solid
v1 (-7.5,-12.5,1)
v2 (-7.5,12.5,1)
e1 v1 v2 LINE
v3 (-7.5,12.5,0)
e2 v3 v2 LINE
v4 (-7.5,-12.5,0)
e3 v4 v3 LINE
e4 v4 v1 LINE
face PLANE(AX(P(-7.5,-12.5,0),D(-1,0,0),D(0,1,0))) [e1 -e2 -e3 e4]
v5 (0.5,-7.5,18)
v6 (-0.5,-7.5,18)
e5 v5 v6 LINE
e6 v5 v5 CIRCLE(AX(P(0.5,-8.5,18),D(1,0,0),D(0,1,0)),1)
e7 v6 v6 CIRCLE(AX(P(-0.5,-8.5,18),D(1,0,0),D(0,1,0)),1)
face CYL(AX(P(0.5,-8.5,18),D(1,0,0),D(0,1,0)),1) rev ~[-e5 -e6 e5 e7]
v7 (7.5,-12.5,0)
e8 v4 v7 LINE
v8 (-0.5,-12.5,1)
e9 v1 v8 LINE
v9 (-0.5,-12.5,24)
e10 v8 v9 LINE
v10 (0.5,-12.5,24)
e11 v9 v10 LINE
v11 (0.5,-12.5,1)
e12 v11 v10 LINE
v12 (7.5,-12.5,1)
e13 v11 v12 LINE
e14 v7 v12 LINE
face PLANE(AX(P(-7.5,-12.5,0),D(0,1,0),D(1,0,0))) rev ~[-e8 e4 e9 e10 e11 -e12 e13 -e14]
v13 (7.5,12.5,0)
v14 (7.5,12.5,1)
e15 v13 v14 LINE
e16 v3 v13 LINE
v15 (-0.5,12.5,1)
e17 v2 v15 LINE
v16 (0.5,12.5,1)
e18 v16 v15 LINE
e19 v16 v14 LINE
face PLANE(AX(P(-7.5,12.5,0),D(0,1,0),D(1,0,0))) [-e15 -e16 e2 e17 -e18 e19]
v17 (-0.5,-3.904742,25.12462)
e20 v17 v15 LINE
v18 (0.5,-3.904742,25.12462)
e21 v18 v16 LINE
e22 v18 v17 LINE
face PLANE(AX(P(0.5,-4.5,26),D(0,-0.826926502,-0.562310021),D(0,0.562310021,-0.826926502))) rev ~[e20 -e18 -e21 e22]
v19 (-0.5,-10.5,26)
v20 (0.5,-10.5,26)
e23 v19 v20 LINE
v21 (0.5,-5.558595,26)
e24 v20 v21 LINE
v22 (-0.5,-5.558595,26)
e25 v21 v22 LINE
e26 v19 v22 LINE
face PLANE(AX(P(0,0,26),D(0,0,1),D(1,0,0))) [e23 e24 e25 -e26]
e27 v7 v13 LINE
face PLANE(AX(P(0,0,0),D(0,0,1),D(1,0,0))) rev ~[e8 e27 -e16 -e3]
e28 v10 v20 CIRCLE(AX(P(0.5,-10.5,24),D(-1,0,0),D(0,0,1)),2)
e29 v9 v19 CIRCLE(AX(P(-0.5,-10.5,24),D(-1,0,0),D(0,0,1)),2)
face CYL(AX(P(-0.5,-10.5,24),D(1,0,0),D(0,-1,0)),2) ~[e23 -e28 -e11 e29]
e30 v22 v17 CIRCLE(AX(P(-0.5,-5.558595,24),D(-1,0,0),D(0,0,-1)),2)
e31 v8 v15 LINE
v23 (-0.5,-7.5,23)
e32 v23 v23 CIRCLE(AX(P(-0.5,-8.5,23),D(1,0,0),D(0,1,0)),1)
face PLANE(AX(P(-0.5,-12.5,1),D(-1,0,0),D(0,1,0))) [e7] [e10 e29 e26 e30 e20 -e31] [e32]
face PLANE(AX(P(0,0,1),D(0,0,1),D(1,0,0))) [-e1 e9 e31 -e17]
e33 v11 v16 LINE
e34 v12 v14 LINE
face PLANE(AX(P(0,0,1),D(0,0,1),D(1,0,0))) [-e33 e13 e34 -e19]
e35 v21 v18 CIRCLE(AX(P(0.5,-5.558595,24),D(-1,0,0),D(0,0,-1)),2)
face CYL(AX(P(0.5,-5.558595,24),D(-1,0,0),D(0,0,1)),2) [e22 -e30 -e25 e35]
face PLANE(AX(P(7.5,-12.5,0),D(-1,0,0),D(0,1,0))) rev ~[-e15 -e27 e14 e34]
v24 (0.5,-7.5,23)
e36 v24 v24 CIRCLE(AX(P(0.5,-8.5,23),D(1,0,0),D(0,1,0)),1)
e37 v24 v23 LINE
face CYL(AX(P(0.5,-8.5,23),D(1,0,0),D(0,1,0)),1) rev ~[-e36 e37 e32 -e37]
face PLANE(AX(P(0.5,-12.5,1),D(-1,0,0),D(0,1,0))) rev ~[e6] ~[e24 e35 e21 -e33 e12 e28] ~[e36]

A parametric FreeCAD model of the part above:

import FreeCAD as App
import Part
import Sketcher
from FreeCAD import Vector


def edges_at(feature, points):
    """Names of the edges that pass closest to the given points."""
    edges = feature.Shape.Edges
    near = lambda p: min(range(len(edges)), key=lambda i: edges[i].distToShape(Part.Vertex(*p))[0])
    return sorted({f"Edge{near(p) + 1}" for p in points})


def add_polygon(sketch, points):
    """Adds a closed chain of lines whose ends are joined by coincident constraints."""
    first, n = sketch.GeometryCount, len(points)
    for a, b in zip(points, points[1:] + points[:1]):
        sketch.addGeometry(Part.LineSegment(App.Vector(*a, 0), App.Vector(*b, 0)), False)
    for i in range(n):
        sketch.addConstraint(Sketcher.Constraint("Coincident", first + i, 2, first + (i + 1) % n, 1))

doc = App.newDocument("Part")
params = doc.addObject("Spreadsheet::Sheet", "Params")
for row, (alias, value) in enumerate([
    ("sketch1_width", "15 mm"),
    ("sketch1_height", "25 mm"),
    ("pad1_length", "1 mm"),
    ("sketch2_width", "1 mm"),
    ("sketch2_height", "25 mm"),
    ("pad2_length", "25 mm"),
    ("sketch3_diameter", "2 mm"),
    ("sketch3_width", "17 mm"),
    ("sketch3_height", "25 mm"),
    ("fillet_radius", "2 mm"),
], start=1):
    params.set(f"A{row}", alias)
    params.set(f"B{row}", "=" + value)
    params.setAlias(f"B{row}", alias)

body = doc.addObject("PartDesign::Body", "Body")

sketch1 = doc.addObject("Sketcher::SketchObject", "Sketch")
body.addObject(sketch1)
sketch1.AttachmentSupport = (doc.XY_Plane, [""])
sketch1.MapMode = "FlatFace"
add_polygon(sketch1, [(-8, 12), (-8, -12), (8, -12), (8, 12)])
sketch1.addConstraint([
    Sketcher.Constraint("Vertical", 0),
    Sketcher.Constraint("Horizontal", 1),
    Sketcher.Constraint("Vertical", 2),
    Sketcher.Constraint("Horizontal", 3),
    Sketcher.Constraint("Symmetric", 0, 2, 2, 2, -1, 1),
    Sketcher.Constraint("DistanceX", 1, 1, 1, 2, 15.0),
    Sketcher.Constraint("DistanceY", 0, 2, 0, 1, 25.0),
])
sketch1.setExpression("Constraints[9]", "Params.sketch1_width")
sketch1.setExpression("Constraints[10]", "Params.sketch1_height")
pad1 = doc.addObject("PartDesign::Pad", "Pad")
body.addObject(pad1)
pad1.Profile = sketch1
pad1.setExpression("Length", "Params.pad1_length")

sketch2 = doc.addObject("Sketcher::SketchObject", "Sketch001")
body.addObject(sketch2)
sketch2.AttachmentSupport = (doc.XY_Plane, [""])
sketch2.MapMode = "FlatFace"
sketch2.AttachmentOffset = App.Placement(Vector(0, 0, 1), App.Rotation())
add_polygon(sketch2, [(-0.5, 12.5), (-0.5, -12.5), (0.5, -12.5), (0.5, 12.5)])
sketch2.addConstraint([
    Sketcher.Constraint("Vertical", 0),
    Sketcher.Constraint("Horizontal", 1),
    Sketcher.Constraint("Vertical", 2),
    Sketcher.Constraint("Horizontal", 3),
    Sketcher.Constraint("Symmetric", 0, 2, 2, 2, -1, 1),
    Sketcher.Constraint("DistanceX", 1, 1, 1, 2, 1.0),
    Sketcher.Constraint("DistanceY", 0, 2, 0, 1, 25.0),
])
sketch2.setExpression("Constraints[9]", "Params.sketch2_width")
sketch2.setExpression("Constraints[10]", "Params.sketch2_height")
pad2 = doc.addObject("PartDesign::Pad", "Pad001")
body.addObject(pad2)
pad2.Profile = sketch2
pad2.setExpression("Length", "Params.pad2_length")

sketch3 = doc.addObject("Sketcher::SketchObject", "Sketch002")
body.addObject(sketch3)
sketch3.AttachmentSupport = (doc.YZ_Plane, [""])
sketch3.MapMode = "FlatFace"
sketch3.AttachmentOffset = App.Placement(Vector(0, 0, 0.5), App.Rotation())
add_polygon(sketch3, [(-4.5, 26), (12.5, 1), (12.5, 26)])
sketch3.addGeometry(Part.Circle(Vector(-8.5, 23, 0), Vector(0, 0, 1), 1), False)
sketch3.addGeometry(Part.Circle(Vector(-8.5, 18, 0), Vector(0, 0, 1), 1), False)
sketch3.addConstraint([
    Sketcher.Constraint("Vertical", 1),
    Sketcher.Constraint("Horizontal", 2),
    Sketcher.Constraint("Equal", 3, 4),
    Sketcher.Constraint("Vertical", 3, 3, 4, 3),
    Sketcher.Constraint("Diameter", 3, 2.0),
    Sketcher.Constraint("DistanceX", 2, 2, 2, 1, 17.0),
    Sketcher.Constraint("DistanceY", 1, 1, 1, 2, 25.0),
    Sketcher.Constraint("DistanceY", -1, 1, 3, 3, 23.0),
    Sketcher.Constraint("DistanceY", -1, 1, 4, 3, 18.0),
    Sketcher.Constraint("DistanceY", -1, 1, 0, 2, 1.0),
    Sketcher.Constraint("DistanceX", 4, 3, 0, 2, 21.0),
    Sketcher.Constraint("DistanceX", 3, 3, -1, 1, 8.5),
])
sketch3.setExpression("Constraints[7]", "Params.sketch3_diameter")
sketch3.setExpression("Constraints[8]", "Params.sketch3_width")
sketch3.setExpression("Constraints[9]", "Params.sketch3_height")
pocket1 = doc.addObject("PartDesign::Pocket", "Pocket")
body.addObject(pocket1)
pocket1.Profile = sketch3
pocket1.Type = "ThroughAll"
doc.recompute()

fillet = doc.addObject("PartDesign::Fillet", "Fillet")
body.addObject(fillet)
fillet.Base = (pocket1, edges_at(pocket1, [(0, -12.5, 26), (0, -4.5, 26)]))
fillet.setExpression("Radius", "Params.fillet_radius")

doc.recompute()
